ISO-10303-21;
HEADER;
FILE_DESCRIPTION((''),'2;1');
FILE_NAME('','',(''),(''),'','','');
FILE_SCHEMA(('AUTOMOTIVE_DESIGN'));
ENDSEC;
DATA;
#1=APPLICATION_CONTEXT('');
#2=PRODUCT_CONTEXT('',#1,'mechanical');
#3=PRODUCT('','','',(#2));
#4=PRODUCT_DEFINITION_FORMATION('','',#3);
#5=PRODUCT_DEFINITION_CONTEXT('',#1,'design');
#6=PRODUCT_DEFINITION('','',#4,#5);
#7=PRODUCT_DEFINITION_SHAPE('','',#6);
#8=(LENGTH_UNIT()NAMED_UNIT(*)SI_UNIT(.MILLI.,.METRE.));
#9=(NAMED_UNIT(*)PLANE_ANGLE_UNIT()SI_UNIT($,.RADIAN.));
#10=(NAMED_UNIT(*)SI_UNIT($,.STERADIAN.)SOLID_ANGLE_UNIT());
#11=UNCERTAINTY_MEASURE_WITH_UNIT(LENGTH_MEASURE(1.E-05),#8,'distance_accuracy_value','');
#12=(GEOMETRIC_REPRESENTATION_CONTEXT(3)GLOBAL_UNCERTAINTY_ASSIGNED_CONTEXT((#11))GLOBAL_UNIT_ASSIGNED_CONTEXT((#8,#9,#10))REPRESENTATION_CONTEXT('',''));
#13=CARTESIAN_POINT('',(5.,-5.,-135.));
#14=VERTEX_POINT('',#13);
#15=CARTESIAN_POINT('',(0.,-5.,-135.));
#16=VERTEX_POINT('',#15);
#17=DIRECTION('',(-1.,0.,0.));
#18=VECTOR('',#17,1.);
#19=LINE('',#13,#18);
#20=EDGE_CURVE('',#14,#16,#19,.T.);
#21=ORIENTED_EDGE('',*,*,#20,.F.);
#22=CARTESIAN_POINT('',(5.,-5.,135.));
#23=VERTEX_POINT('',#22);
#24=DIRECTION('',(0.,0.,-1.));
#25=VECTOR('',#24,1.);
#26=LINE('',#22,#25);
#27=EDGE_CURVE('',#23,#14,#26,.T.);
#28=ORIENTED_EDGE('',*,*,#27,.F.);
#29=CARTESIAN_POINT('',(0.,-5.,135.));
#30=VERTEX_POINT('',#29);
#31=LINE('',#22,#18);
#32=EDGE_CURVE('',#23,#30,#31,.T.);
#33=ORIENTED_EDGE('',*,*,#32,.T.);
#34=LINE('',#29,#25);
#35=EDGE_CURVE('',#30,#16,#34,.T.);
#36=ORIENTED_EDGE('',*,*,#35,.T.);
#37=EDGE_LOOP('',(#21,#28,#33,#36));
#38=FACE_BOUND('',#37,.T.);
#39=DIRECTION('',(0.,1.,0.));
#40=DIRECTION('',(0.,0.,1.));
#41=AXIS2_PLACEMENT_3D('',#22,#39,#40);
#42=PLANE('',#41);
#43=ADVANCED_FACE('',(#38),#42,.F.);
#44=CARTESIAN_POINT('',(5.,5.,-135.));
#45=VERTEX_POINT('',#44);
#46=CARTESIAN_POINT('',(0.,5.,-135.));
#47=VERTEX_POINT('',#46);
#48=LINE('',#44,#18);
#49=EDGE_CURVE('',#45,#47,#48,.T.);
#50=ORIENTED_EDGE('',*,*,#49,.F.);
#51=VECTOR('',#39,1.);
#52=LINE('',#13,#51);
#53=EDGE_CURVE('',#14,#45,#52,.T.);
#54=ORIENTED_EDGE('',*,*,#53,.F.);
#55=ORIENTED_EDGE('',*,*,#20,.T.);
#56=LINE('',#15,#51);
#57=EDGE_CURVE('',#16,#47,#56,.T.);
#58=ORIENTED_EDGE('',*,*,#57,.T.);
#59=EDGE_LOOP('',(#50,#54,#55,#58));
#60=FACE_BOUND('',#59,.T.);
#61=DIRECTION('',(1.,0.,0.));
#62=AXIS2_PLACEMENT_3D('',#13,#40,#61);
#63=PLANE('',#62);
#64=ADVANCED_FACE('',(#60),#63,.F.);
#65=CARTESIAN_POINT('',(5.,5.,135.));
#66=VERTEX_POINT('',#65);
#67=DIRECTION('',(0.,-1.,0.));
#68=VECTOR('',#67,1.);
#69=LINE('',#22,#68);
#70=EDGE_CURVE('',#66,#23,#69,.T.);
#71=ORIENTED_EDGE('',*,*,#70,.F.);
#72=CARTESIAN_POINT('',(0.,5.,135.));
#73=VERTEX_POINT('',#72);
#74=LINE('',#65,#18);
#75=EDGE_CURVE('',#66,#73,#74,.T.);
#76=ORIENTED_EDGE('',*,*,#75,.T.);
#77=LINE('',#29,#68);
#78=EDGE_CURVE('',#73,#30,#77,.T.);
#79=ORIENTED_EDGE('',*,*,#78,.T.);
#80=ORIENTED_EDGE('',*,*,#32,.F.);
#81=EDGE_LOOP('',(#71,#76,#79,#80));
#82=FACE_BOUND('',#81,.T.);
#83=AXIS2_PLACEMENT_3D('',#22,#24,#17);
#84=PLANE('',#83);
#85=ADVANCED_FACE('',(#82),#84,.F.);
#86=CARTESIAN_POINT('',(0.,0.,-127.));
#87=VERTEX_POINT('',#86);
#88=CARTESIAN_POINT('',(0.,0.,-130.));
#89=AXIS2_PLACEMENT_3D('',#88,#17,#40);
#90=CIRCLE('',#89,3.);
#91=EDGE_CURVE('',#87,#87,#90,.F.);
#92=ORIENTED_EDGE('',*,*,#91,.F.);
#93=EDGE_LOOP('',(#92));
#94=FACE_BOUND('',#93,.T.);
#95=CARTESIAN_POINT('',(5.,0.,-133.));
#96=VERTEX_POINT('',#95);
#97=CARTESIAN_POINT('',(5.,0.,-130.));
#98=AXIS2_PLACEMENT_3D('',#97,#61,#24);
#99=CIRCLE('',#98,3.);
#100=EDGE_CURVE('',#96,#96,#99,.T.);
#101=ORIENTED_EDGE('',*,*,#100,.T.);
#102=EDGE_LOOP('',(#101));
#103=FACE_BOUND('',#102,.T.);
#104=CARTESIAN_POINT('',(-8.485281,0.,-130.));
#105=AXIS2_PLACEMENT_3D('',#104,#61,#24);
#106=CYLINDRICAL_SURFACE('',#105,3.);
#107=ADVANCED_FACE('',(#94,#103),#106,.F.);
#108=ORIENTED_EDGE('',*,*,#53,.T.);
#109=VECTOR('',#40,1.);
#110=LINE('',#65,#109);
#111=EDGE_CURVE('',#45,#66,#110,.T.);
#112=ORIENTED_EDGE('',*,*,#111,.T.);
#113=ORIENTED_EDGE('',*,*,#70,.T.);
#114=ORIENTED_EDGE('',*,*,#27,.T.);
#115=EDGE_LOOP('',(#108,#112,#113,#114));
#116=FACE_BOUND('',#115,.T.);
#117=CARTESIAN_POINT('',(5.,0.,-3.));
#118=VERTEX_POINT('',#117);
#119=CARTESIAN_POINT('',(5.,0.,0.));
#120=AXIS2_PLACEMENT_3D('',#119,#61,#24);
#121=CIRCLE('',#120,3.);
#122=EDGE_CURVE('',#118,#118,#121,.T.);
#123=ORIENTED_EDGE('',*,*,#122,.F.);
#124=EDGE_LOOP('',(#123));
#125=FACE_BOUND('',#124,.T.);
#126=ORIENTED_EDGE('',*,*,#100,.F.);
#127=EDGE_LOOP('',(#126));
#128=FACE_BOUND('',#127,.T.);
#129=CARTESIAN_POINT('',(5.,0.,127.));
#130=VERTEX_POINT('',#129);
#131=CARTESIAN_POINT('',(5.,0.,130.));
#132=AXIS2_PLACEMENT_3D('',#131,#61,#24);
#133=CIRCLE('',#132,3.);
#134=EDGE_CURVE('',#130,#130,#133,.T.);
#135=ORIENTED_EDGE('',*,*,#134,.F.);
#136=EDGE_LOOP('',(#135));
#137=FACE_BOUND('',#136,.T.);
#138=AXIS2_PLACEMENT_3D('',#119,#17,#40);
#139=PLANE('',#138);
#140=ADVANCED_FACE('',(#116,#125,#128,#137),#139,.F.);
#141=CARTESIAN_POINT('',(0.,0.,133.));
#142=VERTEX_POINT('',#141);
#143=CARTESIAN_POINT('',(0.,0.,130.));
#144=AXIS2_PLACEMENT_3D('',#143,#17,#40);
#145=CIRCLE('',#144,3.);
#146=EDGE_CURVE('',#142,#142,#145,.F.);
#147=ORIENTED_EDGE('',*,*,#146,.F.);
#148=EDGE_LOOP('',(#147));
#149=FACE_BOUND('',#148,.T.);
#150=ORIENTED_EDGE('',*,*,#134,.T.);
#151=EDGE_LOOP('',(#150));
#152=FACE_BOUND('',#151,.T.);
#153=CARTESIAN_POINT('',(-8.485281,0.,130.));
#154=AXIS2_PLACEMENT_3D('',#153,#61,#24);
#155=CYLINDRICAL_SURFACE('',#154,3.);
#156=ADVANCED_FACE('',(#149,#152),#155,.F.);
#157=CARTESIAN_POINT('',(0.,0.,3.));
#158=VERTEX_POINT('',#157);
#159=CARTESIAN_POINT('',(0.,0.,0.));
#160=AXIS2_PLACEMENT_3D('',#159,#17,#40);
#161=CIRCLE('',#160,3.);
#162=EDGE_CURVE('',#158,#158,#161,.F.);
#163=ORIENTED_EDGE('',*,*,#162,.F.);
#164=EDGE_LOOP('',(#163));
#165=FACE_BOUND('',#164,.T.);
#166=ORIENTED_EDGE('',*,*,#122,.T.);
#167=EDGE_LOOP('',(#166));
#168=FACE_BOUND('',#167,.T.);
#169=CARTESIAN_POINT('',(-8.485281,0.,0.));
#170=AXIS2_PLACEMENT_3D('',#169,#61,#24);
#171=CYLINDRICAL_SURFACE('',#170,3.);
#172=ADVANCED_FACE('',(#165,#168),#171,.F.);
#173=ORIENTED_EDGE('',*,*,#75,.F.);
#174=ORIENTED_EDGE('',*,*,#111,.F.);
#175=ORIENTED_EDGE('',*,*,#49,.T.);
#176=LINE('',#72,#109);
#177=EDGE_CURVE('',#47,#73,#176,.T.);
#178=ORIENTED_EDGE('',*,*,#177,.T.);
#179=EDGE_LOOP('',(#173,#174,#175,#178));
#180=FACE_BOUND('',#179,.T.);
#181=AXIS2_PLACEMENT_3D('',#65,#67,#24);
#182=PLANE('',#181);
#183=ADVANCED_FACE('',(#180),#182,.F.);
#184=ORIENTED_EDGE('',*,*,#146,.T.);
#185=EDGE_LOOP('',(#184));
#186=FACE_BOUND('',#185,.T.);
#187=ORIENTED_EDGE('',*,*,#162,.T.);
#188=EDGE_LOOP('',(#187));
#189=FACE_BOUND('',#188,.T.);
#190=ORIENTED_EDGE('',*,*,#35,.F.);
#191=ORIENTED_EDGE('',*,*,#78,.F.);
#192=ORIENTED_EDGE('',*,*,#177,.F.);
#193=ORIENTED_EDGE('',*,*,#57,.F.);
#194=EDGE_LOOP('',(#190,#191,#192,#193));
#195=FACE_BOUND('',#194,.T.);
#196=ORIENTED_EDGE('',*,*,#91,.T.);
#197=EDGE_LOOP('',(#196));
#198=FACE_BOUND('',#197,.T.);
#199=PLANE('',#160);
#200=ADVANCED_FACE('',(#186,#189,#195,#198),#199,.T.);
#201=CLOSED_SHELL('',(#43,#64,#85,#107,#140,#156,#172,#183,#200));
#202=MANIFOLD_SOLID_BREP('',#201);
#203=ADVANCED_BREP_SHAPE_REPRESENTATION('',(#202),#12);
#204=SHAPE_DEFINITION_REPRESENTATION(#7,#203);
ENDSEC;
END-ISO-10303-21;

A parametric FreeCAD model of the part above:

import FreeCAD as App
import Part
import Sketcher

V = App.Vector


def add_polygon(sketch, points):
    """Adds a closed chain of lines whose ends are joined by coincident constraints."""
    first, n = sketch.GeometryCount, len(points)
    for a, b in zip(points, points[1:] + points[:1]):
        sketch.addGeometry(Part.LineSegment(App.Vector(*a, 0), App.Vector(*b, 0)), False)
    for i in range(n):
        sketch.addConstraint(Sketcher.Constraint("Coincident", first + i, 2, first + (i + 1) % n, 1))

doc = App.newDocument("Part")
body = doc.addObject("PartDesign::Body", "Body")

# Sketch on YZ plane
sketch1 = body.newObject("Sketcher::SketchObject", "Sketch")
sketch1.AttachmentSupport = (doc.getObject("YZ_Plane"), [""])
sketch1.MapMode = "FlatFace"
add_polygon(sketch1, [(5, 135), (-5, 135), (-5, -135), (5, -135)])  # lines 0-3
sketch1.addConstraint(Sketcher.Constraint("Horizontal", 0))
sketch1.addConstraint(Sketcher.Constraint("Vertical", 1))
sketch1.addConstraint(Sketcher.Constraint("Horizontal", 2))
sketch1.addConstraint(Sketcher.Constraint("Vertical", 3))
sketch1.addConstraint(Sketcher.Constraint("Symmetric", 0, 2, 2, 2, -1, 1))
sketch1.addConstraint(Sketcher.Constraint("DistanceX", 0, 2, 0, 1, 10.0))
sketch1.addConstraint(Sketcher.Constraint("DistanceY", 1, 2, 1, 1, 270.0))
pad1 = body.newObject("PartDesign::Pad", "Pad")
pad1.Profile = sketch1
pad1.Length = 5

# Sketch on YZ plane
sketch2 = body.newObject("Sketcher::SketchObject", "Sketch001")
sketch2.AttachmentSupport = (doc.getObject("YZ_Plane"), [""])
sketch2.MapMode = "FlatFace"
sketch2.AttachmentOffset = App.Placement(V(0, 0, 5), App.Rotation())
sketch2.addGeometry(Part.Circle(V(0, 0, 0), V(0, 0, 1), 3), False)
sketch2.addGeometry(Part.Circle(V(0, -130, 0), V(0, 0, 1), 3), False)
sketch2.addGeometry(Part.Circle(V(0, 130, 0), V(0, 0, 1), 3), False)
sketch2.addConstraint(Sketcher.Constraint("Coincident", 0, 3, -1, 1))
sketch2.addConstraint(Sketcher.Constraint("Equal", 0, 1))
sketch2.addConstraint(Sketcher.Constraint("Equal", 1, 2))
sketch2.addConstraint(Sketcher.Constraint("Symmetric", 1, 3, 2, 3, -1, 1))
sketch2.addConstraint(Sketcher.Constraint("PointOnObject", 1, 3, -2))
sketch2.addConstraint(Sketcher.Constraint("Diameter", 0, 6.0))
sketch2.addConstraint(Sketcher.Constraint("DistanceY", 1, 3, -1, 1, 130.0))
pocket1 = body.newObject("PartDesign::Pocket", "Pocket")
pocket1.Profile = sketch2
pocket1.Length = 5

doc.recompute()
